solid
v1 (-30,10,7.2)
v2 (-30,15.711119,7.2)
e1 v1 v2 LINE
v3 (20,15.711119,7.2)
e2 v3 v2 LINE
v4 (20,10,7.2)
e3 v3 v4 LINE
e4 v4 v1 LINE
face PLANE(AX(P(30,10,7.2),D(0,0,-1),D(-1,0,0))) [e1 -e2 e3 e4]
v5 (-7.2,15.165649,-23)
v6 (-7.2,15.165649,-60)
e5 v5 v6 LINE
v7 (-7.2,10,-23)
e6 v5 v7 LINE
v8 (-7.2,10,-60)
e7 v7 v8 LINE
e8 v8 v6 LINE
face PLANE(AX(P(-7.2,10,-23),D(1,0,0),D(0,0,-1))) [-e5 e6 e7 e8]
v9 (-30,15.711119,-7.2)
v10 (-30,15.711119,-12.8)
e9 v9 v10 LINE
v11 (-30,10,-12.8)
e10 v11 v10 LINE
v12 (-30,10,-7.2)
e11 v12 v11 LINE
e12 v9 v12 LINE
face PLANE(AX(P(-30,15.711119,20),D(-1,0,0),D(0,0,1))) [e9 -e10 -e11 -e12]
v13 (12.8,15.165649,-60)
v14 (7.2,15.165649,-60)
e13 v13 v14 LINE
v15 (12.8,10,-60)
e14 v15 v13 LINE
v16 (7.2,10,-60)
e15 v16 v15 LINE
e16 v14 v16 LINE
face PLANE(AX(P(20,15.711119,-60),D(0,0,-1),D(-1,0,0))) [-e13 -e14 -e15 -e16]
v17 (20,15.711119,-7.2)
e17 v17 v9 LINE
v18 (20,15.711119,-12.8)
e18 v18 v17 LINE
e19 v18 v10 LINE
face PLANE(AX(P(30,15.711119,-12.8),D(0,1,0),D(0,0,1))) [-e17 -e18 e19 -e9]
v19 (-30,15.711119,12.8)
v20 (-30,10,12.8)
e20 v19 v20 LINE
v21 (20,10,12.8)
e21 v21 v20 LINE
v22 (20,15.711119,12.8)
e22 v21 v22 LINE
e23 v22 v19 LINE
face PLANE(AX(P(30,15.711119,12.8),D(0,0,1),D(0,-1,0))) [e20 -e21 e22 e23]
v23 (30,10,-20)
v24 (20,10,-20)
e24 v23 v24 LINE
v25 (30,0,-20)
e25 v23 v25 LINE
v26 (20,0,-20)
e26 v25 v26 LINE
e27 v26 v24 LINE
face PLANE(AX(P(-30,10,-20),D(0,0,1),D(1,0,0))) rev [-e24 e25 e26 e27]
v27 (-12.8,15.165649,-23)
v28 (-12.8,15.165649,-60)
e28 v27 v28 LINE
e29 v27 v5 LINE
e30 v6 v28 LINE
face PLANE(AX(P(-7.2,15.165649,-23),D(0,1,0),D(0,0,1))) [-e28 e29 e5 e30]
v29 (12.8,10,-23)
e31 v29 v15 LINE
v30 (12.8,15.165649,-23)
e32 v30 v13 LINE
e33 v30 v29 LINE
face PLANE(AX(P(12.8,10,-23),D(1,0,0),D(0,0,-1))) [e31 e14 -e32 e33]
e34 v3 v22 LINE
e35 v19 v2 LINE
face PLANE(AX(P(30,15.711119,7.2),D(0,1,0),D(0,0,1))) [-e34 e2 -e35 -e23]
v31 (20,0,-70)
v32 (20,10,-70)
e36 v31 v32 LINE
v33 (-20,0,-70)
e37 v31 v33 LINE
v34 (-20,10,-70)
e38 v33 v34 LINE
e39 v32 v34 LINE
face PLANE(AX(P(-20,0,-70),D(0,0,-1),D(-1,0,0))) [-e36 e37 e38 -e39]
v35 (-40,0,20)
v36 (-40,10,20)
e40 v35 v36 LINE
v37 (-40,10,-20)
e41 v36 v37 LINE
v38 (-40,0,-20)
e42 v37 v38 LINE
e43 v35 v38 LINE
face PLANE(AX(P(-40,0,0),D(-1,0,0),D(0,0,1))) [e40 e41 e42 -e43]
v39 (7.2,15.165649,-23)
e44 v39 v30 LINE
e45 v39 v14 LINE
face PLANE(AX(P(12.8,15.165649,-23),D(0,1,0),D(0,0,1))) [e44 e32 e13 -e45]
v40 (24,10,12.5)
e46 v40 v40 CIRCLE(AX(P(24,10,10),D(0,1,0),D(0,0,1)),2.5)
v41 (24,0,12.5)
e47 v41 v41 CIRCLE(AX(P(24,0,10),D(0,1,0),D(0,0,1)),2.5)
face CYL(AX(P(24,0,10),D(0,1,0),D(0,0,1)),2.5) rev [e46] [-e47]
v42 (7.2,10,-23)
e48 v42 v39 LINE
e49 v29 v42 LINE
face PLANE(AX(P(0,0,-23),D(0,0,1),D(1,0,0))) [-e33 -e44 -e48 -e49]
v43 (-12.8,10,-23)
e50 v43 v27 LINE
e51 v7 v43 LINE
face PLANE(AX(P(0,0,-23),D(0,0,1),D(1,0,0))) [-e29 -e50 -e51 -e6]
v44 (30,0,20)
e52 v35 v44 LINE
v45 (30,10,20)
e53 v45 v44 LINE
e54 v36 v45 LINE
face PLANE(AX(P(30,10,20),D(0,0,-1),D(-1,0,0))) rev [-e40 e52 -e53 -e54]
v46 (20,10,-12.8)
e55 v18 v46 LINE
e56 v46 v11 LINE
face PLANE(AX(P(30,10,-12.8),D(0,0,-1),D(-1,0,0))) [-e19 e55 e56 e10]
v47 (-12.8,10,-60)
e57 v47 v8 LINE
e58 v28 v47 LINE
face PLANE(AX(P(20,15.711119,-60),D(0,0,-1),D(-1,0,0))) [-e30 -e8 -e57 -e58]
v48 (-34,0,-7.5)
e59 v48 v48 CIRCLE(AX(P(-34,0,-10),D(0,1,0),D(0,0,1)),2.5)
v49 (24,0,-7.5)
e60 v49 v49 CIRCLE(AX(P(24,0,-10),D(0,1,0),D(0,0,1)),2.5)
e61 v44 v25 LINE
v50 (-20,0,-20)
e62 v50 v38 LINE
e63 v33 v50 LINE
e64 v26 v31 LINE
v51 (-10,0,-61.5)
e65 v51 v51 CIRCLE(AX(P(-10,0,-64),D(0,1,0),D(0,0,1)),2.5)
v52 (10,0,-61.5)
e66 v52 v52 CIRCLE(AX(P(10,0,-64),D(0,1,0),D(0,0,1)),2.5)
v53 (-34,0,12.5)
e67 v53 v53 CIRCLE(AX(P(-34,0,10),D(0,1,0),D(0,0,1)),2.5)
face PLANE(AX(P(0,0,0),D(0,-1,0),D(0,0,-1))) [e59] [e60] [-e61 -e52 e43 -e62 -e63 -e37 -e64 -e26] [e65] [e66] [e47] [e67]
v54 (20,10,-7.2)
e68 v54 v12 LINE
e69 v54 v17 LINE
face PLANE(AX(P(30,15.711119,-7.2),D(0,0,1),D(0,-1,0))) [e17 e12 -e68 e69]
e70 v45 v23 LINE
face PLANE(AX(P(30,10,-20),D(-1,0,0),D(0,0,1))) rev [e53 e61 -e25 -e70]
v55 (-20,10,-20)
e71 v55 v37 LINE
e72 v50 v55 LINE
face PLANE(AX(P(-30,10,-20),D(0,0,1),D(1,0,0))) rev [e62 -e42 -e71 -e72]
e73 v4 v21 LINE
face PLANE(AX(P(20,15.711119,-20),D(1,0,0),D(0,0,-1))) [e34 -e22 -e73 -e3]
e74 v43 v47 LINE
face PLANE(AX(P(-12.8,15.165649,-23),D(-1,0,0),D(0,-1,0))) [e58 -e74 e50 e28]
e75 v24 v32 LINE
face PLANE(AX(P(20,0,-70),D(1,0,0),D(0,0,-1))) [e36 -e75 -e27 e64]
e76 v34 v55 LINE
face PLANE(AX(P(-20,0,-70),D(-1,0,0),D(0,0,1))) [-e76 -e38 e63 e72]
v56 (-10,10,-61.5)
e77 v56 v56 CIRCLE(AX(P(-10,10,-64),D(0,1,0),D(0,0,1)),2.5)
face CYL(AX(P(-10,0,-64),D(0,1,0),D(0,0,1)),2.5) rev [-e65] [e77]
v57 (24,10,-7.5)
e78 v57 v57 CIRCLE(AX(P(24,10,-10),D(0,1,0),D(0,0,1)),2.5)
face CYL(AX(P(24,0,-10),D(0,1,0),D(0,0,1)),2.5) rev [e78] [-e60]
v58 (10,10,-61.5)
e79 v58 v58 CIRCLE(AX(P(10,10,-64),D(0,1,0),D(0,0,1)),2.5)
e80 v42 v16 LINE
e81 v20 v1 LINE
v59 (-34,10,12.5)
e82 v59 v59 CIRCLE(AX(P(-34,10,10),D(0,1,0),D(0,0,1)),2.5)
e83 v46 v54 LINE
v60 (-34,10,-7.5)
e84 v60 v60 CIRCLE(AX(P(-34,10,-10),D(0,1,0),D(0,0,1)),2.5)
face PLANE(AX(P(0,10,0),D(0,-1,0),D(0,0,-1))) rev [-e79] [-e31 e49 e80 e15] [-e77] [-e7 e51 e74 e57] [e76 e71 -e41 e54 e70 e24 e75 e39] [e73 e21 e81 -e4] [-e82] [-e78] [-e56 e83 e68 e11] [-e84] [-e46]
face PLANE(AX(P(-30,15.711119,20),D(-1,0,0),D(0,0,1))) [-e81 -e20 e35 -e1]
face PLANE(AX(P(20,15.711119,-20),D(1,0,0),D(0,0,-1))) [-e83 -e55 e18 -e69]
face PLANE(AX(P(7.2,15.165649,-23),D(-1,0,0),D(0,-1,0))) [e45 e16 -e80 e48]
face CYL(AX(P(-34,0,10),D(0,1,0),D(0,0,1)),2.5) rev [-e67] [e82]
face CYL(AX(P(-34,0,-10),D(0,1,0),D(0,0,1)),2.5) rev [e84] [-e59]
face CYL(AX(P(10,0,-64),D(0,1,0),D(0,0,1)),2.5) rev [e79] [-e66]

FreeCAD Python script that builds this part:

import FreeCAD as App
import Part
import Sketcher

V = App.Vector
Q = App.Units.Quantity

doc = App.newDocument("Part")
params = doc.addObject("Spreadsheet::Sheet", "Params")
for row, (alias, value) in enumerate([
    ("sketch1_width", "100 mm"),
    ("sketch1_height", "40 mm"),
    ("pad1_length", "10 mm"),
    ("sketch2_height", "5.6 mm"),
    ("pad2_length", "100 mm"),
    ("sketch3_width", "40 mm"),
    ("sketch3_height", "50 mm"),
    ("pad3_length", "10 mm"),
    ("sketch4_width", "5.6 mm"),
    ("pad4_length", "47 mm"),
    ("pocket1_length", "30 mm"),
    ("sketch6_width", "10 mm"),
    ("sketch6_width2", "40 mm"),
    ("sketch7_diameter", "5 mm"),
], start=1):
    params.set(f"A{row}", alias)
    params.set(f"B{row}", "=" + value)
    params.setAlias(f"B{row}", alias)

body = doc.addObject("PartDesign::Body", "Body")

sketch1 = doc.addObject("Sketcher::SketchObject", "Sketch")
body.addObject(sketch1)
sketch1.AttachmentSupport = (doc.XZ_Plane, [""])
sketch1.MapMode = "FlatFace"
sketch1.addGeometry([
    Part.LineSegment(V(30, -20, 0), V(-70, -20, 0)),
    Part.LineSegment(V(-70, -20, 0), V(-70, 20, 0)),
    Part.LineSegment(V(-70, 20, 0), V(30, 20, 0)),
    Part.LineSegment(V(30, 20, 0), V(30, -20, 0)),
], False)
sketch1.addConstraint([
    Sketcher.Constraint("Coincident", 0, 2, 1, 1),
    Sketcher.Constraint("Coincident", 1, 2, 2, 1),
    Sketcher.Constraint("Coincident", 2, 2, 3, 1),
    Sketcher.Constraint("Coincident", 3, 2, 0, 1),
    Sketcher.Constraint("Horizontal", 0),
    Sketcher.Constraint("Vertical", 1),
    Sketcher.Constraint("Horizontal", 2),
    Sketcher.Constraint("Vertical", 3),
    Sketcher.Constraint("DistanceX", 0, 2, 0, 1, Q("100 mm")),
    Sketcher.Constraint("DistanceY", 1, 1, 1, 2, Q("40 mm")),
    Sketcher.Constraint("DistanceX", 0, 2, -1, 1, Q("70 mm")),
    Sketcher.Constraint("DistanceY", 0, 2, -1, 1, Q("20 mm")),
])
sketch1.setExpression("Constraints[8]", "Params.sketch1_width")
sketch1.setExpression("Constraints[9]", "Params.sketch1_height")
pad1 = doc.addObject("PartDesign::Pad", "Pad")
body.addObject(pad1)
pad1.Profile = sketch1
pad1.setExpression("Length", "Params.pad1_length")
pad1.Reversed = True

sketch2 = doc.addObject("Sketcher::SketchObject", "Sketch001")
body.addObject(sketch2)
sketch2.AttachmentSupport = (doc.YZ_Plane, [""])
sketch2.MapMode = "FlatFace"
sketch2.AttachmentOffset = App.Placement(V(0, 0, -70), App.Rotation())
sketch2.addGeometry([
    Part.LineSegment(V(10, 7.2, 0), V(10, 12.8, 0)),
    Part.LineSegment(V(10, 12.8, 0), V(15.711119, 12.8, 0)),
    Part.LineSegment(V(15.711119, 12.8, 0), V(15.711119, 7.2, 0)),
    Part.LineSegment(V(15.711119, 7.2, 0), V(10, 7.2, 0)),
    Part.LineSegment(V(10, -12.8, 0), V(10, -7.2, 0)),
    Part.LineSegment(V(10, -7.2, 0), V(15.711119, -7.2, 0)),
    Part.LineSegment(V(15.711119, -7.2, 0), V(15.711119, -12.8, 0)),
    Part.LineSegment(V(15.711119, -12.8, 0), V(10, -12.8, 0)),
], False)
sketch2.addConstraint([
    Sketcher.Constraint("Coincident", 0, 2, 1, 1),
    Sketcher.Constraint("Coincident", 1, 2, 2, 1),
    Sketcher.Constraint("Coincident", 2, 2, 3, 1),
    Sketcher.Constraint("Coincident", 3, 2, 0, 1),
    Sketcher.Constraint("Coincident", 4, 2, 5, 1),
    Sketcher.Constraint("Coincident", 5, 2, 6, 1),
    Sketcher.Constraint("Coincident", 6, 2, 7, 1),
    Sketcher.Constraint("Coincident", 7, 2, 4, 1),
    Sketcher.Constraint("Vertical", 0),
    Sketcher.Constraint("Horizontal", 1),
    Sketcher.Constraint("Vertical", 2),
    Sketcher.Constraint("Horizontal", 3),
    Sketcher.Constraint("Vertical", 4),
    Sketcher.Constraint("Horizontal", 5),
    Sketcher.Constraint("Vertical", 6),
    Sketcher.Constraint("Horizontal", 7),
    Sketcher.Constraint("Symmetric", 3, 2, 4, 2, -1),
    Sketcher.Constraint("Symmetric", 1, 2, 6, 2, -1),
    Sketcher.Constraint("DistanceY", 0, 1, 0, 2, Q("5.6 mm")),
    Sketcher.Constraint("DistanceX", -1, 1, 0, 2, Q("10 mm")),
    Sketcher.Constraint("DistanceY", 4, 2, 0, 2, Q("20 mm")),
    Sketcher.Constraint("DistanceX", 1, 1, 1, 2, Q("5.711119 mm")),
])
sketch2.setExpression("Constraints[18]", "Params.sketch2_height")
pad2 = doc.addObject("PartDesign::Pad", "Pad001")
body.addObject(pad2)
pad2.Profile = sketch2
pad2.setExpression("Length", "Params.pad2_length")

sketch3 = doc.addObject("Sketcher::SketchObject", "Sketch002")
body.addObject(sketch3)
sketch3.AttachmentSupport = (doc.XZ_Plane, [""])
sketch3.MapMode = "FlatFace"
sketch3.AttachmentOffset = App.Placement(V(0, 0, -10), App.Rotation())
sketch3.addGeometry([
    Part.LineSegment(V(-20, -70, 0), V(-20, -20, 0)),
    Part.LineSegment(V(-20, -20, 0), V(20, -20, 0)),
    Part.LineSegment(V(20, -20, 0), V(20, -70, 0)),
    Part.LineSegment(V(20, -70, 0), V(-20, -70, 0)),
], False)
sketch3.addConstraint([
    Sketcher.Constraint("Coincident", 0, 2, 1, 1),
    Sketcher.Constraint("Coincident", 1, 2, 2, 1),
    Sketcher.Constraint("Coincident", 2, 2, 3, 1),
    Sketcher.Constraint("Coincident", 3, 2, 0, 1),
    Sketcher.Constraint("Vertical", 0),
    Sketcher.Constraint("Horizontal", 1),
    Sketcher.Constraint("Vertical", 2),
    Sketcher.Constraint("Horizontal", 3),
    Sketcher.Constraint("DistanceX", 1, 1, 1, 2, Q("40 mm")),
    Sketcher.Constraint("DistanceY", 0, 1, 0, 2, Q("50 mm")),
    Sketcher.Constraint("DistanceX", 0, 2, -1, 1, Q("20 mm")),
    Sketcher.Constraint("DistanceY", 0, 2, -1, 1, Q("20 mm")),
])
sketch3.setExpression("Constraints[8]", "Params.sketch3_width")
sketch3.setExpression("Constraints[9]", "Params.sketch3_height")
pad3 = doc.addObject("PartDesign::Pad", "Pad002")
body.addObject(pad3)
pad3.Profile = sketch3
pad3.setExpression("Length", "Params.pad3_length")

sketch4 = doc.addObject("Sketcher::SketchObject", "Sketch003")
body.addObject(sketch4)
sketch4.AttachmentSupport = (doc.XY_Plane, [""])
sketch4.MapMode = "FlatFace"
sketch4.AttachmentOffset = App.Placement(V(0, 0, -70), App.Rotation())
sketch4.addGeometry([
    Part.LineSegment(V(-7.2, 10, 0), V(-12.8, 10, 0)),
    Part.LineSegment(V(-12.8, 10, 0), V(-12.8, 15.165649, 0)),
    Part.LineSegment(V(-12.8, 15.165649, 0), V(-7.2, 15.165649, 0)),
    Part.LineSegment(V(-7.2, 15.165649, 0), V(-7.2, 10, 0)),
    Part.LineSegment(V(12.8, 10, 0), V(7.2, 10, 0)),
    Part.LineSegment(V(7.2, 10, 0), V(7.2, 15.165649, 0)),
    Part.LineSegment(V(7.2, 15.165649, 0), V(12.8, 15.165649, 0)),
    Part.LineSegment(V(12.8, 15.165649, 0), V(12.8, 10, 0)),
], False)
sketch4.addConstraint([
    Sketcher.Constraint("Coincident", 0, 2, 1, 1),
    Sketcher.Constraint("Coincident", 1, 2, 2, 1),
    Sketcher.Constraint("Coincident", 2, 2, 3, 1),
    Sketcher.Constraint("Coincident", 3, 2, 0, 1),
    Sketcher.Constraint("Coincident", 4, 2, 5, 1),
    Sketcher.Constraint("Coincident", 5, 2, 6, 1),
    Sketcher.Constraint("Coincident", 6, 2, 7, 1),
    Sketcher.Constraint("Coincident", 7, 2, 4, 1),
    Sketcher.Constraint("Horizontal", 0),
    Sketcher.Constraint("Vertical", 1),
    Sketcher.Constraint("Horizontal", 2),
    Sketcher.Constraint("Vertical", 3),
    Sketcher.Constraint("Horizontal", 4),
    Sketcher.Constraint("Vertical", 5),
    Sketcher.Constraint("Horizontal", 6),
    Sketcher.Constraint("Vertical", 7),
    Sketcher.Constraint("Symmetric", 3, 2, 4, 2, -2),
    Sketcher.Constraint("Symmetric", 1, 2, 6, 2, -2),
    Sketcher.Constraint("DistanceX", 0, 2, 0, 1, Q("5.6 mm")),
    Sketcher.Constraint("DistanceY", -1, 1, 0, 2, Q("10 mm")),
    Sketcher.Constraint("DistanceX", 0, 2, 4, 2, Q("20 mm")),
    Sketcher.Constraint("DistanceY", 1, 1, 1, 2, Q("5.165649 mm")),
])
sketch4.setExpression("Constraints[18]", "Params.sketch4_width")
pad4 = doc.addObject("PartDesign::Pad", "Pad003")
body.addObject(pad4)
pad4.Profile = sketch4
pad4.setExpression("Length", "Params.pad4_length")

sketch5 = doc.addObject("Sketcher::SketchObject", "Sketch004")
body.addObject(sketch5)
sketch5.AttachmentSupport = (doc.YZ_Plane, [""])
sketch5.MapMode = "FlatFace"
sketch5.AttachmentOffset = App.Placement(V(0, 0, -70), App.Rotation())
sketch5.addGeometry([
    Part.LineSegment(V(81.122397, -37.048319, 0), V(-81.122397, -37.048319, 0)),
    Part.LineSegment(V(-81.122397, -37.048319, 0), V(-81.122397, 37.048319, 0)),
    Part.LineSegment(V(-81.122397, 37.048319, 0), V(81.122397, 37.048319, 0)),
    Part.LineSegment(V(81.122397, 37.048319, 0), V(81.122397, -37.048319, 0)),
], False)
sketch5.addConstraint([
    Sketcher.Constraint("Coincident", 0, 2, 1, 1),
    Sketcher.Constraint("Coincident", 1, 2, 2, 1),
    Sketcher.Constraint("Coincident", 2, 2, 3, 1),
    Sketcher.Constraint("Coincident", 3, 2, 0, 1),
    Sketcher.Constraint("Horizontal", 0),
    Sketcher.Constraint("Vertical", 1),
    Sketcher.Constraint("Horizontal", 2),
    Sketcher.Constraint("Vertical", 3),
    Sketcher.Constraint("Symmetric", 0, 2, 2, 2, -1, 1),
    Sketcher.Constraint("DistanceY", 1, 1, 1, 2, Q("74.096638 mm")),
    Sketcher.Constraint("DistanceX", 0, 2, 0, 1, Q("162.244794 mm")),
])
pocket1 = doc.addObject("PartDesign::Pocket", "Pocket")
body.addObject(pocket1)
pocket1.Profile = sketch5
pocket1.setExpression("Length", "Params.pocket1_length")
pocket1.Reversed = True

sketch6 = doc.addObject("Sketcher::SketchObject", "Sketch005")
body.addObject(sketch6)
sketch6.AttachmentSupport = (doc.XZ_Plane, [""])
sketch6.MapMode = "FlatFace"
sketch6.AttachmentOffset = App.Placement(V(0, 0, -10), App.Rotation())
sketch6.addGeometry([
    Part.LineSegment(V(20, -20, 0), V(20, 20, 0)),
    Part.LineSegment(V(20, 20, 0), V(30, 20, 0)),
    Part.LineSegment(V(30, 20, 0), V(30, -20, 0)),
    Part.LineSegment(V(30, -20, 0), V(20, -20, 0)),
    Part.LineSegment(V(-20, -70, 0), V(-20, -60, 0)),
    Part.LineSegment(V(-20, -60, 0), V(20, -60, 0)),
    Part.LineSegment(V(20, -60, 0), V(20, -70, 0)),
    Part.LineSegment(V(20, -70, 0), V(-20, -70, 0)),
    Part.LineSegment(V(-40, -20, 0), V(-40, 20, 0)),
    Part.LineSegment(V(-40, 20, 0), V(-30, 20, 0)),
    Part.LineSegment(V(-30, 20, 0), V(-30, -20, 0)),
    Part.LineSegment(V(-30, -20, 0), V(-40, -20, 0)),
], False)
sketch6.addConstraint([
    Sketcher.Constraint("Coincident", 0, 2, 1, 1),
    Sketcher.Constraint("Coincident", 1, 2, 2, 1),
    Sketcher.Constraint("Coincident", 2, 2, 3, 1),
    Sketcher.Constraint("Coincident", 3, 2, 0, 1),
    Sketcher.Constraint("Coincident", 4, 2, 5, 1),
    Sketcher.Constraint("Coincident", 5, 2, 6, 1),
    Sketcher.Constraint("Coincident", 6, 2, 7, 1),
    Sketcher.Constraint("Coincident", 7, 2, 4, 1),
    Sketcher.Constraint("Coincident", 8, 2, 9, 1),
    Sketcher.Constraint("Coincident", 9, 2, 10, 1),
    Sketcher.Constraint("Coincident", 10, 2, 11, 1),
    Sketcher.Constraint("Coincident", 11, 2, 8, 1),
    Sketcher.Constraint("Vertical", 0),
    Sketcher.Constraint("Horizontal", 1),
    Sketcher.Constraint("Vertical", 2),
    Sketcher.Constraint("Horizontal", 3),
    Sketcher.Constraint("Vertical", 4),
    Sketcher.Constraint("Horizontal", 5),
    Sketcher.Constraint("Vertical", 6),
    Sketcher.Constraint("Horizontal", 7),
    Sketcher.Constraint("Vertical", 8),
    Sketcher.Constraint("Horizontal", 9),
    Sketcher.Constraint("Vertical", 10),
    Sketcher.Constraint("Horizontal", 11),
    Sketcher.Constraint("Symmetric", 2, 2, 9, 2, -1, 1),
    Sketcher.Constraint("Horizontal", 1, 2, 8, 2),
    Sketcher.Constraint("Horizontal", 3, 2, 10, 2),
    Sketcher.Constraint("Vertical", 3, 2, 5, 2),
    Sketcher.Constraint("Equal", 3, 9),
    Sketcher.Constraint("Equal", 7, 0),
    Sketcher.Constraint("Equal", 11, 4),
    Sketcher.Constraint("DistanceX", 1, 1, 1, 2, Q("10 mm")),
    Sketcher.Constraint("DistanceX", 5, 1, 5, 2, Q("40 mm")),
    Sketcher.Constraint("DistanceX", -1, 1, 0, 2, Q("20 mm")),
    Sketcher.Constraint("DistanceY", 4, 2, -1, 1, Q("60 mm")),
])
sketch6.setExpression("Constraints[31]", "Params.sketch6_width")
sketch6.setExpression("Constraints[32]", "Params.sketch6_width2")
pocket2 = doc.addObject("PartDesign::Pocket", "Pocket001")
body.addObject(pocket2)
pocket2.Profile = sketch6
pocket2.Type = "ThroughAll"

sketch7 = doc.addObject("Sketcher::SketchObject", "Sketch006")
body.addObject(sketch7)
sketch7.AttachmentSupport = (doc.XZ_Plane, [""])
sketch7.MapMode = "FlatFace"
sketch7.AttachmentOffset = App.Placement(V(0, 0, -10), App.Rotation())
sketch7.addGeometry([
    Part.Circle(V(24, 10, 0), V(0, 0, 1), 2.5),
    Part.Circle(V(24, -10, 0), V(0, 0, 1), 2.5),
    Part.Circle(V(-34, 10, 0), V(0, 0, 1), 2.5),
    Part.Circle(V(-34, -10, 0), V(0, 0, 1), 2.5),
    Part.Circle(V(10, -64, 0), V(0, 0, 1), 2.5),
    Part.Circle(V(-10, -64, 0), V(0, 0, 1), 2.5),
], False)
sketch7.addConstraint([
    Sketcher.Constraint("Equal", 0, 1),
    Sketcher.Constraint("Equal", 1, 2),
    Sketcher.Constraint("Equal", 2, 3),
    Sketcher.Constraint("Equal", 3, 4),
    Sketcher.Constraint("Equal", 4, 5),
    Sketcher.Constraint("Symmetric", 4, 3, 5, 3, -2),
    Sketcher.Constraint("Symmetric", 0, 3, 1, 3, -1),
    Sketcher.Constraint("Symmetric", 2, 3, 3, 3, -1),
    Sketcher.Constraint("Horizontal", 0, 3, 2, 3),
    Sketcher.Constraint("Diameter", 0, Q("5 mm")),
    Sketcher.Constraint("DistanceX", -1, 1, 0, 3, Q("24 mm")),
    Sketcher.Constraint("DistanceY", -1, 1, 0, 3, Q("10 mm")),
    Sketcher.Constraint("DistanceX", 2, 3, -1, 1, Q("34 mm")),
    Sketcher.Constraint("DistanceX", -1, 1, 4, 3, Q("10 mm")),
    Sketcher.Constraint("DistanceY", 4, 3, -1, 1, Q("64 mm")),
])
sketch7.setExpression("Constraints[9]", "Params.sketch7_diameter")
pocket3 = doc.addObject("PartDesign::Pocket", "Pocket002")
body.addObject(pocket3)
pocket3.Profile = sketch7
pocket3.Type = "ThroughAll"
pocket3.Reversed = True

doc.recompute()
